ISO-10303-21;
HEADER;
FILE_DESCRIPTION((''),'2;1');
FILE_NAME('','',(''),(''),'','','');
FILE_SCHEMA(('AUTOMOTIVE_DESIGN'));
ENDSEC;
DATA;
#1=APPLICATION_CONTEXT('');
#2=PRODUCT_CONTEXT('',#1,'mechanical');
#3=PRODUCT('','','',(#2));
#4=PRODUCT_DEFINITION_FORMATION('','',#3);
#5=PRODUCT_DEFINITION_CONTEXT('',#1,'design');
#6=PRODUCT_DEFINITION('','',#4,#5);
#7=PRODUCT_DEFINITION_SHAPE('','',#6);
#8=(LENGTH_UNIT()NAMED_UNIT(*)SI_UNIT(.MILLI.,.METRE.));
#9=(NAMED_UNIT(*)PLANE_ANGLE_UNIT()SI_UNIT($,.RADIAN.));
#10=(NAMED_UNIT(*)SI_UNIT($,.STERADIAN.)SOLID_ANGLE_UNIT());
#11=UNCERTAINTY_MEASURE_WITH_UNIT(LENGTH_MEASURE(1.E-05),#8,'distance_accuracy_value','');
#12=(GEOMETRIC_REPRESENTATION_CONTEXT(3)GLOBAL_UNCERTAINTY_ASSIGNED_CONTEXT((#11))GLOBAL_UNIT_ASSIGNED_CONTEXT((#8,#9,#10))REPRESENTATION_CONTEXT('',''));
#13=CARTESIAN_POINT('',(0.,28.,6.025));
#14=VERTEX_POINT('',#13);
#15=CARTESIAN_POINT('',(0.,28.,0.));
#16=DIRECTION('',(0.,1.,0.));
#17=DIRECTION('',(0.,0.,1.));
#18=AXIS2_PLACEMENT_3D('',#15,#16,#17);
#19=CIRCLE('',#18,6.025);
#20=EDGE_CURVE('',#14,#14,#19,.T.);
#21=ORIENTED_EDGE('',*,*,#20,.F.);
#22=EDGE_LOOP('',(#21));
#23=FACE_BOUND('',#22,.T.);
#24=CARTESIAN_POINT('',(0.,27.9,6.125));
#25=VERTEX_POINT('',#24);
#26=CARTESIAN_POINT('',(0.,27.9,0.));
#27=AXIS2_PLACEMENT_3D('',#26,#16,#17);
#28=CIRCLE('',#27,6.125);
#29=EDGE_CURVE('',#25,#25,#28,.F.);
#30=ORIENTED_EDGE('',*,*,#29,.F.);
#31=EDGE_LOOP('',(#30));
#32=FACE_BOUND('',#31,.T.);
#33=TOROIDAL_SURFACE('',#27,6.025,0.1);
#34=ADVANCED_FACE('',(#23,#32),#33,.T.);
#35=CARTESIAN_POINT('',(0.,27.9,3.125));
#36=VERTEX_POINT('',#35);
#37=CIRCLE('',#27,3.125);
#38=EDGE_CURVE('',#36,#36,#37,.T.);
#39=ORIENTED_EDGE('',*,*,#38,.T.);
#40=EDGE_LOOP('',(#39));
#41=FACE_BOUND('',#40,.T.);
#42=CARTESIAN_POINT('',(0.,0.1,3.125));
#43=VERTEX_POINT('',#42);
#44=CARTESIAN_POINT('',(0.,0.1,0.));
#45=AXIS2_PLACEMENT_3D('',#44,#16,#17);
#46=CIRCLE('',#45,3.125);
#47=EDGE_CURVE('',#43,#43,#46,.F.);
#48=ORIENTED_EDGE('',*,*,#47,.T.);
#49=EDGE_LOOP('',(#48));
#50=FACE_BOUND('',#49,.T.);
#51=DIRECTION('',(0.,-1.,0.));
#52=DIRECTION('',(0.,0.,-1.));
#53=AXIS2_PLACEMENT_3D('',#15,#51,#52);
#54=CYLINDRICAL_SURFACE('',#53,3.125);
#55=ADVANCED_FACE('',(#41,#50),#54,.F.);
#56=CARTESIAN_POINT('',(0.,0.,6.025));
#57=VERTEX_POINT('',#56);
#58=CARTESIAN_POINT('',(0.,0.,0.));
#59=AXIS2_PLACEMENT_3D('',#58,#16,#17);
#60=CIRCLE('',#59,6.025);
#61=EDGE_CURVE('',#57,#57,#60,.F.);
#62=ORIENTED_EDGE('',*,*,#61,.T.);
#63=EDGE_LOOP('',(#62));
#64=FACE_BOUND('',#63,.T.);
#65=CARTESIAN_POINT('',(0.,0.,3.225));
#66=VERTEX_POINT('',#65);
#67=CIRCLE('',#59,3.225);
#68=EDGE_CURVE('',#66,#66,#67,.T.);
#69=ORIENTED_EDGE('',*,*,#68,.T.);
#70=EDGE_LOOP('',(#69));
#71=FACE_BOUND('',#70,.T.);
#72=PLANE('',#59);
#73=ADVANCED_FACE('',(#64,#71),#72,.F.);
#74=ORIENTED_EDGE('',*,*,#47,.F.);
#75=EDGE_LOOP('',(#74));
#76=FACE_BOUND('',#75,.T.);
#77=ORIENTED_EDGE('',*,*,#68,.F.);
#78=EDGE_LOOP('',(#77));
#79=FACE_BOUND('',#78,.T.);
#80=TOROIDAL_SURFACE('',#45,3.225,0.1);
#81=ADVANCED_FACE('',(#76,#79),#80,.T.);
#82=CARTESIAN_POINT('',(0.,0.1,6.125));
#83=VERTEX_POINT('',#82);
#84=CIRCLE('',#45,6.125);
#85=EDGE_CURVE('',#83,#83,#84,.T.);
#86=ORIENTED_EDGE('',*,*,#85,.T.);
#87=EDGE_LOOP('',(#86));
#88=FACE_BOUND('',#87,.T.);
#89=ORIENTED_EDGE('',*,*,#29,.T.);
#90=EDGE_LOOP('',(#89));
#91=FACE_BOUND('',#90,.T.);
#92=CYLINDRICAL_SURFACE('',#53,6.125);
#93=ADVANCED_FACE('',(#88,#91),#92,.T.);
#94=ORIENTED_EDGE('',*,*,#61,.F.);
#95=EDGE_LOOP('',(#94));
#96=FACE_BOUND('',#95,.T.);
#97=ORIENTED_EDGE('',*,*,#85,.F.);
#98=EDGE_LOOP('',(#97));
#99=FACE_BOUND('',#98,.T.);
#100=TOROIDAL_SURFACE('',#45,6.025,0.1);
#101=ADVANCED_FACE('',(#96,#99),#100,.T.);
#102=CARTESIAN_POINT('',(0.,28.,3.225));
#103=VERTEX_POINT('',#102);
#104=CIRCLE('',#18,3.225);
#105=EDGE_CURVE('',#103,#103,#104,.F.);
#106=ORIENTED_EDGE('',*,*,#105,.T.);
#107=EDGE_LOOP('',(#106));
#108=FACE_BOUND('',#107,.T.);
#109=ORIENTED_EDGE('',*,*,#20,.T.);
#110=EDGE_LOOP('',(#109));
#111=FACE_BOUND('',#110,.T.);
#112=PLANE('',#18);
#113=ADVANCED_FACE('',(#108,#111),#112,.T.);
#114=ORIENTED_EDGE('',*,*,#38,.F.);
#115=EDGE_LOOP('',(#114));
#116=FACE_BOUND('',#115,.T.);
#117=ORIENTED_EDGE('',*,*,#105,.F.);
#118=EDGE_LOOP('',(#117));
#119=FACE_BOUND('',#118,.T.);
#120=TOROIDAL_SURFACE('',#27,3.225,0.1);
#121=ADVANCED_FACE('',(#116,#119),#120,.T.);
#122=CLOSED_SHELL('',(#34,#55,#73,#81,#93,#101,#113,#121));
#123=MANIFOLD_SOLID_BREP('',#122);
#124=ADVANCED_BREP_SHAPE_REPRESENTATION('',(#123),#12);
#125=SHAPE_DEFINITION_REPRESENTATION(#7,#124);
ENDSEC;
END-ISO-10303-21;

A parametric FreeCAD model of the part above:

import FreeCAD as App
import Part
import Sketcher

V = App.Vector


def edges_at(feature, points):
    """Names of the edges that pass closest to the given points."""
    edges = feature.Shape.Edges
    near = lambda p: min(range(len(edges)), key=lambda i: edges[i].distToShape(Part.Vertex(*p))[0])
    return sorted({f"Edge{near(p) + 1}" for p in points})

doc = App.newDocument("Part")
body = doc.addObject("PartDesign::Body", "Body")

# Sketch on XZ plane
sketch1 = doc.addObject("Sketcher::SketchObject", "Sketch")
body.addObject(sketch1)
sketch1.AttachmentSupport = (doc.XZ_Plane, [""])
sketch1.MapMode = "FlatFace"
sketch1.addGeometry([
    Part.Circle(V(0, 0, 0), V(0, 0, 1), 6.125),
    Part.Circle(V(0, 0, 0), V(0, 0, 1), 3.125),
], False)
sketch1.addConstraint([
    Sketcher.Constraint("Coincident", 0, 3, -1, 1),
    Sketcher.Constraint("Coincident", 1, 3, -1, 1),
    Sketcher.Constraint("Diameter", 0, 12.25),
    Sketcher.Constraint("Diameter", 1, 6.25),
])
pad1 = doc.addObject("PartDesign::Pad", "Pad")
body.addObject(pad1)
pad1.Profile = sketch1
pad1.Length = 28
pad1.Reversed = True
doc.recompute()

fillet = doc.addObject("PartDesign::Fillet", "Fillet")
body.addObject(fillet)
fillet.Base = (pad1, edges_at(pad1, [
    (-6.125, 0, 0),
    (-6.125, 28, 0),
    (-3.125, 0, 0),
    (-3.125, 28, 0),
]))
fillet.Radius = 0.1

doc.recompute()
